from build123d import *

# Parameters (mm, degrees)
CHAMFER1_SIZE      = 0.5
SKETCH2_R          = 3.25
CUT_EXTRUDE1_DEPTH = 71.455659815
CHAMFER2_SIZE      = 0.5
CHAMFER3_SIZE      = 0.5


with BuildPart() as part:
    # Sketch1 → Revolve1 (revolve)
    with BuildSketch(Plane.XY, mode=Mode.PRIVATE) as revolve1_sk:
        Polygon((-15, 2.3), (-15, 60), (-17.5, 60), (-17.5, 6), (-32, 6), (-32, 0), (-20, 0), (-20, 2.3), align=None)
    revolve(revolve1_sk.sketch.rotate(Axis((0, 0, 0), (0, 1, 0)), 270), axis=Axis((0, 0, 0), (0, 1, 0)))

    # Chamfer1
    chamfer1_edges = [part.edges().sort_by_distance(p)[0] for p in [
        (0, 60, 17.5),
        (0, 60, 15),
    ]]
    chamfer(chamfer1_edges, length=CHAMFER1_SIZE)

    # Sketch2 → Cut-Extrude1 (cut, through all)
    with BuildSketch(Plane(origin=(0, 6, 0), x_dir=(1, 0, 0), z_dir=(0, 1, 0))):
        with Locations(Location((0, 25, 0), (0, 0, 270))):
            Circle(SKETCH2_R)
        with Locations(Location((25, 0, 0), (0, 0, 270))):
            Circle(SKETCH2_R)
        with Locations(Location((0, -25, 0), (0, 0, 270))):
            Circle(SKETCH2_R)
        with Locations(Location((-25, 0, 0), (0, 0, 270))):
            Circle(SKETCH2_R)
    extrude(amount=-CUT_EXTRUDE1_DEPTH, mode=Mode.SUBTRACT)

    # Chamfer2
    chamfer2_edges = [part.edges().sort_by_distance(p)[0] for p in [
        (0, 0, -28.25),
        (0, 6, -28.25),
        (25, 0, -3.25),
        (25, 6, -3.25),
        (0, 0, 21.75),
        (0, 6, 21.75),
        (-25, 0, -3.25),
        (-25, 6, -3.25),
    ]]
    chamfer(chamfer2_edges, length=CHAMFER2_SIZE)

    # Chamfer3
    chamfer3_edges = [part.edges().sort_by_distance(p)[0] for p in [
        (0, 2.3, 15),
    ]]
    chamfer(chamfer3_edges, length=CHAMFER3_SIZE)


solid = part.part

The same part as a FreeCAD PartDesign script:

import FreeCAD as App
import Part
import Sketcher
Q = App.Units.Quantity


def edges_at(feature, points):
    """Names of the edges that pass closest to the given points."""
    edges = feature.Shape.Edges
    near = lambda p: min(range(len(edges)), key=lambda i: edges[i].distToShape(Part.Vertex(*p))[0])
    return sorted({f"Edge{near(p) + 1}" for p in points})

doc = App.newDocument("Part")
body = doc.addObject("PartDesign::Body", "Body")

sketch1 = doc.addObject("Sketcher::SketchObject", "Sketch")
body.addObject(sketch1)
sketch1.AttachmentSupport = (doc.XY_Plane, [""])
sketch1.MapMode = "FlatFace"
sketch1.addGeometry([
    Part.LineSegment(App.Vector(-15, 2.3, 0), App.Vector(-15, 60, 0)),
    Part.LineSegment(App.Vector(-15, 60, 0), App.Vector(-17.5, 60, 0)),
    Part.LineSegment(App.Vector(-17.5, 60, 0), App.Vector(-17.5, 6, 0)),
    Part.LineSegment(App.Vector(-17.5, 6, 0), App.Vector(-32, 6, 0)),
    Part.LineSegment(App.Vector(-32, 6, 0), App.Vector(-32, 0, 0)),
    Part.LineSegment(App.Vector(-32, 0, 0), App.Vector(-20, 0, 0)),
    Part.LineSegment(App.Vector(-20, 0, 0), App.Vector(-20, 2.3, 0)),
    Part.LineSegment(App.Vector(-20, 2.3, 0), App.Vector(-15, 2.3, 0)),
], False)
sketch1.addConstraint([
    Sketcher.Constraint("Coincident", 0, 2, 1, 1),
    Sketcher.Constraint("Coincident", 1, 2, 2, 1),
    Sketcher.Constraint("Coincident", 2, 2, 3, 1),
    Sketcher.Constraint("Coincident", 3, 2, 4, 1),
    Sketcher.Constraint("Coincident", 4, 2, 5, 1),
    Sketcher.Constraint("Coincident", 5, 2, 6, 1),
    Sketcher.Constraint("Coincident", 6, 2, 7, 1),
    Sketcher.Constraint("Coincident", 7, 2, 0, 1),
    Sketcher.Constraint("Vertical", 0),
    Sketcher.Constraint("Horizontal", 1),
    Sketcher.Constraint("Vertical", 2),
    Sketcher.Constraint("Horizontal", 3),
    Sketcher.Constraint("Vertical", 4),
    Sketcher.Constraint("Horizontal", 5),
    Sketcher.Constraint("Vertical", 6),
    Sketcher.Constraint("Horizontal", 7),
    Sketcher.Constraint("PointOnObject", 4, 2, -1),
    Sketcher.Constraint("DistanceX", 5, 1, 5, 2, Q("12 mm")),
    Sketcher.Constraint("DistanceX", 7, 1, 7, 2, Q("5 mm")),
    Sketcher.Constraint("DistanceY", 2, 2, 2, 1, Q("54 mm")),
    Sketcher.Constraint("DistanceY", 4, 2, 4, 1, Q("6 mm")),
    Sketcher.Constraint("DistanceX", 1, 2, 1, 1, Q("2.5 mm")),
    Sketcher.Constraint("DistanceY", 0, 1, 0, 2, Q("57.7 mm")),
    Sketcher.Constraint("DistanceX", 0, 2, -1, 1, Q("15 mm")),
])
revolution = doc.addObject("PartDesign::Revolution", "Revolution")
body.addObject(revolution)
revolution.Profile = sketch1
revolution.ReferenceAxis = (sketch1, ["V_Axis"])
revolution.Angle = 360
doc.recompute()

chamfer = doc.addObject("PartDesign::Chamfer", "Chamfer")
body.addObject(chamfer)
chamfer.Base = (revolution, edges_at(revolution, [(0, 60, 17.5), (0, 60, 15)]))
chamfer.Size = 0.5

sketch2 = doc.addObject("Sketcher::SketchObject", "Sketch001")
body.addObject(sketch2)
sketch2.AttachmentSupport = (doc.XZ_Plane, [""])
sketch2.MapMode = "FlatFace"
sketch2.AttachmentOffset = App.Placement(App.Vector(0, 0, -6), App.Rotation())
sketch2.addGeometry([
    Part.Circle(App.Vector(0, -25, 0), App.Vector(0, 0, 1), 3.2),
    Part.Circle(App.Vector(25, 0, 0), App.Vector(0, 0, 1), 3.2),
    Part.Circle(App.Vector(0, 25, 0), App.Vector(0, 0, 1), 3.2),
    Part.Circle(App.Vector(-25, 0, 0), App.Vector(0, 0, 1), 3.2),
], False)
sketch2.addConstraint([
    Sketcher.Constraint("Equal", 0, 1),
    Sketcher.Constraint("Equal", 1, 2),
    Sketcher.Constraint("Equal", 2, 3),
    Sketcher.Constraint("Symmetric", 0, 3, 2, 3, -1, 1),
    Sketcher.Constraint("Symmetric", 1, 3, 3, 3, -1, 1),
    Sketcher.Constraint("PointOnObject", 0, 3, -2),
    Sketcher.Constraint("PointOnObject", 1, 3, -1),
    Sketcher.Constraint("Diameter", 0, Q("6.5 mm")),
    Sketcher.Constraint("DistanceY", 0, 3, -1, 1, Q("25 mm")),
    Sketcher.Constraint("DistanceX", -1, 1, 1, 3, Q("25 mm")),
])
pocket1 = doc.addObject("PartDesign::Pocket", "Pocket")
body.addObject(pocket1)
pocket1.Profile = sketch2
pocket1.Type = "ThroughAll"
pocket1.Reversed = True
doc.recompute()

chamfer2 = doc.addObject("PartDesign::Chamfer", "Chamfer001")
body.addObject(chamfer2)
chamfer2.Base = (pocket1, edges_at(pocket1, [
    (0, 0, -28.25),
    (0, 6, -28.25),
    (25, 0, -3.25),
    (25, 6, -3.25),
    (0, 0, 21.75),
    (0, 6, 21.75),
    (-25, 0, -3.25),
    (-25, 6, -3.25),
]))
chamfer2.Size = 0.5
doc.recompute()

chamfer3 = doc.addObject("PartDesign::Chamfer", "Chamfer002")
body.addObject(chamfer3)
chamfer3.Base = (chamfer2, edges_at(chamfer2, [(0, 2.3, 15)]))
chamfer3.Size = 0.5

doc.recompute()
